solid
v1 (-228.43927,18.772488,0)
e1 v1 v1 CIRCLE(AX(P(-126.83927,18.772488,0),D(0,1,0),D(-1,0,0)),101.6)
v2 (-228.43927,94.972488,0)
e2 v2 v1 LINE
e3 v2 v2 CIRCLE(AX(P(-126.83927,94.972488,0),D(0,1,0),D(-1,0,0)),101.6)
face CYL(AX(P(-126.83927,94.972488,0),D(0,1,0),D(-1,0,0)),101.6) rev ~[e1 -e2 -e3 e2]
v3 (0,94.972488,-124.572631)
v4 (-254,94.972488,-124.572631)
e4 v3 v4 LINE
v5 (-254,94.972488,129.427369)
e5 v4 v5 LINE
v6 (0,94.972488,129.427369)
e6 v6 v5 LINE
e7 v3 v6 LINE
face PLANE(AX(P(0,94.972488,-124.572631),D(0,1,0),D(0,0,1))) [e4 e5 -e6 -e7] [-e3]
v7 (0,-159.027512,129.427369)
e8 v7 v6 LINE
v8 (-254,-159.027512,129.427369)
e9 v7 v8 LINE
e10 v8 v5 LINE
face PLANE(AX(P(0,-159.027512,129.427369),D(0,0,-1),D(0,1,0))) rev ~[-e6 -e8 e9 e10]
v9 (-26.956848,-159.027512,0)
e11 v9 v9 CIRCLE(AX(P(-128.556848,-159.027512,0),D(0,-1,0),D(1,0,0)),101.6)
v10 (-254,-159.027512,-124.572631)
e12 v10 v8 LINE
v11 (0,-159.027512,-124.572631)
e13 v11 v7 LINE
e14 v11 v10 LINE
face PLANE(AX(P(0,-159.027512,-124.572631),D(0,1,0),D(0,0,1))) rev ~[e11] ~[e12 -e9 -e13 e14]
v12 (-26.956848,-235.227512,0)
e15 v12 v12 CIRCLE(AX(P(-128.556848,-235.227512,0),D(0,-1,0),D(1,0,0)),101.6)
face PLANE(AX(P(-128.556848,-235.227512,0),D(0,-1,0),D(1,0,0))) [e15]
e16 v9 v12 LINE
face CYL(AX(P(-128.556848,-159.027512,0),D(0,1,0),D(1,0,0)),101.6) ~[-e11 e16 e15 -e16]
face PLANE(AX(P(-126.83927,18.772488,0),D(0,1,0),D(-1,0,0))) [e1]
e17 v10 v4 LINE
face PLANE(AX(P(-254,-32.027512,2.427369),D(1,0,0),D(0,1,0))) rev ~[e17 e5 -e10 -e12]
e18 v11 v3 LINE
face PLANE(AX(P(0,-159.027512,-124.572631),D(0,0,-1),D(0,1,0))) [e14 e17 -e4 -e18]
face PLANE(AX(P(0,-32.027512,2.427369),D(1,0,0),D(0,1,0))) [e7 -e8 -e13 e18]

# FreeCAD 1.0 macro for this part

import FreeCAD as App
import Part
import Sketcher

V = App.Vector
Q = App.Units.Quantity

doc = App.newDocument("Part")
params = doc.addObject("Spreadsheet::Sheet", "Params")
for row, (alias, value) in enumerate([
    ("sketch1_width", "10 in"),
    ("pad1_length", "10 in"),
    ("sketch2_diameter", "8 in"),
    ("pad2_length", "3 in"),
    ("sketch3_diameter", "8 in"),
    ("pocket1_length", "3 in"),
], start=1):
    params.set(f"A{row}", alias)
    params.set(f"B{row}", "=" + value)
    params.setAlias(f"B{row}", alias)

body = doc.addObject("PartDesign::Body", "Body")

# Sketch on YZ plane
sketch1 = body.newObject("Sketcher::SketchObject", "Sketch")
sketch1.AttachmentSupport = (doc.getObject("YZ_Plane"), [""])
sketch1.MapMode = "FlatFace"
sketch1.addGeometry([
    Part.LineSegment(V(-159, 129, 0), V(-159, -125, 0)),
    Part.LineSegment(V(-159, -125, 0), V(95, -125, 0)),
    Part.LineSegment(V(95, -125, 0), V(95, 129, 0)),
    Part.LineSegment(V(95, 129, 0), V(-159, 129, 0)),
], False)
sketch1.addConstraint([
    Sketcher.Constraint("Coincident", 0, 2, 1, 1),
    Sketcher.Constraint("Coincident", 1, 2, 2, 1),
    Sketcher.Constraint("Coincident", 2, 2, 3, 1),
    Sketcher.Constraint("Coincident", 3, 2, 0, 1),
    Sketcher.Constraint("Vertical", 0),
    Sketcher.Constraint("Horizontal", 1),
    Sketcher.Constraint("Vertical", 2),
    Sketcher.Constraint("Horizontal", 3),
    Sketcher.Constraint("Equal", 3, 0),
    Sketcher.Constraint("DistanceX", 1, 1, 1, 2, Q("10 in")),
    Sketcher.Constraint("DistanceX", 0, 2, -1, 1, Q("159.027512 mm")),
    Sketcher.Constraint("DistanceY", 0, 2, -1, 1, Q("124.572631 mm")),
])
sketch1.setExpression("Constraints[9]", "Params.sketch1_width")
pad1 = body.newObject("PartDesign::Pad", "Pad")
pad1.Profile = sketch1
pad1.setExpression("Length", "Params.pad1_length")
pad1.Reversed = True

# Sketch on XZ plane
sketch2 = body.newObject("Sketcher::SketchObject", "Sketch001")
sketch2.AttachmentSupport = (doc.getObject("XZ_Plane"), [""])
sketch2.MapMode = "FlatFace"
sketch2.AttachmentOffset = App.Placement(V(0, 0, 159.027512), App.Rotation())
sketch2.addGeometry(Part.Circle(V(-129, 0, 0), V(0, 0, 1), 102), False)
sketch2.addConstraint([
    Sketcher.Constraint("PointOnObject", 0, 3, -1),
    Sketcher.Constraint("Diameter", 0, Q("8 in")),
    Sketcher.Constraint("DistanceX", 0, 3, -1, 1, Q("128.556848 mm")),
])
sketch2.setExpression("Constraints[1]", "Params.sketch2_diameter")
pad2 = body.newObject("PartDesign::Pad", "Pad001")
pad2.Profile = sketch2
pad2.setExpression("Length", "Params.pad2_length")

# Sketch on XZ plane
sketch3 = body.newObject("Sketcher::SketchObject", "Sketch002")
sketch3.AttachmentSupport = (doc.getObject("XZ_Plane"), [""])
sketch3.MapMode = "FlatFace"
sketch3.AttachmentOffset = App.Placement(V(0, 0, -94.972488), App.Rotation())
sketch3.addGeometry(Part.Circle(V(-127, 0, 0), V(0, 0, 1), 102), False)
sketch3.addConstraint([
    Sketcher.Constraint("PointOnObject", 0, 3, -1),
    Sketcher.Constraint("Diameter", 0, Q("8 in")),
    Sketcher.Constraint("DistanceX", 0, 3, -1, 1, Q("126.83927 mm")),
])
sketch3.setExpression("Constraints[1]", "Params.sketch3_diameter")
pocket1 = body.newObject("PartDesign::Pocket", "Pocket")
pocket1.Profile = sketch3
pocket1.setExpression("Length", "Params.pocket1_length")
pocket1.Reversed = True

doc.recompute()
